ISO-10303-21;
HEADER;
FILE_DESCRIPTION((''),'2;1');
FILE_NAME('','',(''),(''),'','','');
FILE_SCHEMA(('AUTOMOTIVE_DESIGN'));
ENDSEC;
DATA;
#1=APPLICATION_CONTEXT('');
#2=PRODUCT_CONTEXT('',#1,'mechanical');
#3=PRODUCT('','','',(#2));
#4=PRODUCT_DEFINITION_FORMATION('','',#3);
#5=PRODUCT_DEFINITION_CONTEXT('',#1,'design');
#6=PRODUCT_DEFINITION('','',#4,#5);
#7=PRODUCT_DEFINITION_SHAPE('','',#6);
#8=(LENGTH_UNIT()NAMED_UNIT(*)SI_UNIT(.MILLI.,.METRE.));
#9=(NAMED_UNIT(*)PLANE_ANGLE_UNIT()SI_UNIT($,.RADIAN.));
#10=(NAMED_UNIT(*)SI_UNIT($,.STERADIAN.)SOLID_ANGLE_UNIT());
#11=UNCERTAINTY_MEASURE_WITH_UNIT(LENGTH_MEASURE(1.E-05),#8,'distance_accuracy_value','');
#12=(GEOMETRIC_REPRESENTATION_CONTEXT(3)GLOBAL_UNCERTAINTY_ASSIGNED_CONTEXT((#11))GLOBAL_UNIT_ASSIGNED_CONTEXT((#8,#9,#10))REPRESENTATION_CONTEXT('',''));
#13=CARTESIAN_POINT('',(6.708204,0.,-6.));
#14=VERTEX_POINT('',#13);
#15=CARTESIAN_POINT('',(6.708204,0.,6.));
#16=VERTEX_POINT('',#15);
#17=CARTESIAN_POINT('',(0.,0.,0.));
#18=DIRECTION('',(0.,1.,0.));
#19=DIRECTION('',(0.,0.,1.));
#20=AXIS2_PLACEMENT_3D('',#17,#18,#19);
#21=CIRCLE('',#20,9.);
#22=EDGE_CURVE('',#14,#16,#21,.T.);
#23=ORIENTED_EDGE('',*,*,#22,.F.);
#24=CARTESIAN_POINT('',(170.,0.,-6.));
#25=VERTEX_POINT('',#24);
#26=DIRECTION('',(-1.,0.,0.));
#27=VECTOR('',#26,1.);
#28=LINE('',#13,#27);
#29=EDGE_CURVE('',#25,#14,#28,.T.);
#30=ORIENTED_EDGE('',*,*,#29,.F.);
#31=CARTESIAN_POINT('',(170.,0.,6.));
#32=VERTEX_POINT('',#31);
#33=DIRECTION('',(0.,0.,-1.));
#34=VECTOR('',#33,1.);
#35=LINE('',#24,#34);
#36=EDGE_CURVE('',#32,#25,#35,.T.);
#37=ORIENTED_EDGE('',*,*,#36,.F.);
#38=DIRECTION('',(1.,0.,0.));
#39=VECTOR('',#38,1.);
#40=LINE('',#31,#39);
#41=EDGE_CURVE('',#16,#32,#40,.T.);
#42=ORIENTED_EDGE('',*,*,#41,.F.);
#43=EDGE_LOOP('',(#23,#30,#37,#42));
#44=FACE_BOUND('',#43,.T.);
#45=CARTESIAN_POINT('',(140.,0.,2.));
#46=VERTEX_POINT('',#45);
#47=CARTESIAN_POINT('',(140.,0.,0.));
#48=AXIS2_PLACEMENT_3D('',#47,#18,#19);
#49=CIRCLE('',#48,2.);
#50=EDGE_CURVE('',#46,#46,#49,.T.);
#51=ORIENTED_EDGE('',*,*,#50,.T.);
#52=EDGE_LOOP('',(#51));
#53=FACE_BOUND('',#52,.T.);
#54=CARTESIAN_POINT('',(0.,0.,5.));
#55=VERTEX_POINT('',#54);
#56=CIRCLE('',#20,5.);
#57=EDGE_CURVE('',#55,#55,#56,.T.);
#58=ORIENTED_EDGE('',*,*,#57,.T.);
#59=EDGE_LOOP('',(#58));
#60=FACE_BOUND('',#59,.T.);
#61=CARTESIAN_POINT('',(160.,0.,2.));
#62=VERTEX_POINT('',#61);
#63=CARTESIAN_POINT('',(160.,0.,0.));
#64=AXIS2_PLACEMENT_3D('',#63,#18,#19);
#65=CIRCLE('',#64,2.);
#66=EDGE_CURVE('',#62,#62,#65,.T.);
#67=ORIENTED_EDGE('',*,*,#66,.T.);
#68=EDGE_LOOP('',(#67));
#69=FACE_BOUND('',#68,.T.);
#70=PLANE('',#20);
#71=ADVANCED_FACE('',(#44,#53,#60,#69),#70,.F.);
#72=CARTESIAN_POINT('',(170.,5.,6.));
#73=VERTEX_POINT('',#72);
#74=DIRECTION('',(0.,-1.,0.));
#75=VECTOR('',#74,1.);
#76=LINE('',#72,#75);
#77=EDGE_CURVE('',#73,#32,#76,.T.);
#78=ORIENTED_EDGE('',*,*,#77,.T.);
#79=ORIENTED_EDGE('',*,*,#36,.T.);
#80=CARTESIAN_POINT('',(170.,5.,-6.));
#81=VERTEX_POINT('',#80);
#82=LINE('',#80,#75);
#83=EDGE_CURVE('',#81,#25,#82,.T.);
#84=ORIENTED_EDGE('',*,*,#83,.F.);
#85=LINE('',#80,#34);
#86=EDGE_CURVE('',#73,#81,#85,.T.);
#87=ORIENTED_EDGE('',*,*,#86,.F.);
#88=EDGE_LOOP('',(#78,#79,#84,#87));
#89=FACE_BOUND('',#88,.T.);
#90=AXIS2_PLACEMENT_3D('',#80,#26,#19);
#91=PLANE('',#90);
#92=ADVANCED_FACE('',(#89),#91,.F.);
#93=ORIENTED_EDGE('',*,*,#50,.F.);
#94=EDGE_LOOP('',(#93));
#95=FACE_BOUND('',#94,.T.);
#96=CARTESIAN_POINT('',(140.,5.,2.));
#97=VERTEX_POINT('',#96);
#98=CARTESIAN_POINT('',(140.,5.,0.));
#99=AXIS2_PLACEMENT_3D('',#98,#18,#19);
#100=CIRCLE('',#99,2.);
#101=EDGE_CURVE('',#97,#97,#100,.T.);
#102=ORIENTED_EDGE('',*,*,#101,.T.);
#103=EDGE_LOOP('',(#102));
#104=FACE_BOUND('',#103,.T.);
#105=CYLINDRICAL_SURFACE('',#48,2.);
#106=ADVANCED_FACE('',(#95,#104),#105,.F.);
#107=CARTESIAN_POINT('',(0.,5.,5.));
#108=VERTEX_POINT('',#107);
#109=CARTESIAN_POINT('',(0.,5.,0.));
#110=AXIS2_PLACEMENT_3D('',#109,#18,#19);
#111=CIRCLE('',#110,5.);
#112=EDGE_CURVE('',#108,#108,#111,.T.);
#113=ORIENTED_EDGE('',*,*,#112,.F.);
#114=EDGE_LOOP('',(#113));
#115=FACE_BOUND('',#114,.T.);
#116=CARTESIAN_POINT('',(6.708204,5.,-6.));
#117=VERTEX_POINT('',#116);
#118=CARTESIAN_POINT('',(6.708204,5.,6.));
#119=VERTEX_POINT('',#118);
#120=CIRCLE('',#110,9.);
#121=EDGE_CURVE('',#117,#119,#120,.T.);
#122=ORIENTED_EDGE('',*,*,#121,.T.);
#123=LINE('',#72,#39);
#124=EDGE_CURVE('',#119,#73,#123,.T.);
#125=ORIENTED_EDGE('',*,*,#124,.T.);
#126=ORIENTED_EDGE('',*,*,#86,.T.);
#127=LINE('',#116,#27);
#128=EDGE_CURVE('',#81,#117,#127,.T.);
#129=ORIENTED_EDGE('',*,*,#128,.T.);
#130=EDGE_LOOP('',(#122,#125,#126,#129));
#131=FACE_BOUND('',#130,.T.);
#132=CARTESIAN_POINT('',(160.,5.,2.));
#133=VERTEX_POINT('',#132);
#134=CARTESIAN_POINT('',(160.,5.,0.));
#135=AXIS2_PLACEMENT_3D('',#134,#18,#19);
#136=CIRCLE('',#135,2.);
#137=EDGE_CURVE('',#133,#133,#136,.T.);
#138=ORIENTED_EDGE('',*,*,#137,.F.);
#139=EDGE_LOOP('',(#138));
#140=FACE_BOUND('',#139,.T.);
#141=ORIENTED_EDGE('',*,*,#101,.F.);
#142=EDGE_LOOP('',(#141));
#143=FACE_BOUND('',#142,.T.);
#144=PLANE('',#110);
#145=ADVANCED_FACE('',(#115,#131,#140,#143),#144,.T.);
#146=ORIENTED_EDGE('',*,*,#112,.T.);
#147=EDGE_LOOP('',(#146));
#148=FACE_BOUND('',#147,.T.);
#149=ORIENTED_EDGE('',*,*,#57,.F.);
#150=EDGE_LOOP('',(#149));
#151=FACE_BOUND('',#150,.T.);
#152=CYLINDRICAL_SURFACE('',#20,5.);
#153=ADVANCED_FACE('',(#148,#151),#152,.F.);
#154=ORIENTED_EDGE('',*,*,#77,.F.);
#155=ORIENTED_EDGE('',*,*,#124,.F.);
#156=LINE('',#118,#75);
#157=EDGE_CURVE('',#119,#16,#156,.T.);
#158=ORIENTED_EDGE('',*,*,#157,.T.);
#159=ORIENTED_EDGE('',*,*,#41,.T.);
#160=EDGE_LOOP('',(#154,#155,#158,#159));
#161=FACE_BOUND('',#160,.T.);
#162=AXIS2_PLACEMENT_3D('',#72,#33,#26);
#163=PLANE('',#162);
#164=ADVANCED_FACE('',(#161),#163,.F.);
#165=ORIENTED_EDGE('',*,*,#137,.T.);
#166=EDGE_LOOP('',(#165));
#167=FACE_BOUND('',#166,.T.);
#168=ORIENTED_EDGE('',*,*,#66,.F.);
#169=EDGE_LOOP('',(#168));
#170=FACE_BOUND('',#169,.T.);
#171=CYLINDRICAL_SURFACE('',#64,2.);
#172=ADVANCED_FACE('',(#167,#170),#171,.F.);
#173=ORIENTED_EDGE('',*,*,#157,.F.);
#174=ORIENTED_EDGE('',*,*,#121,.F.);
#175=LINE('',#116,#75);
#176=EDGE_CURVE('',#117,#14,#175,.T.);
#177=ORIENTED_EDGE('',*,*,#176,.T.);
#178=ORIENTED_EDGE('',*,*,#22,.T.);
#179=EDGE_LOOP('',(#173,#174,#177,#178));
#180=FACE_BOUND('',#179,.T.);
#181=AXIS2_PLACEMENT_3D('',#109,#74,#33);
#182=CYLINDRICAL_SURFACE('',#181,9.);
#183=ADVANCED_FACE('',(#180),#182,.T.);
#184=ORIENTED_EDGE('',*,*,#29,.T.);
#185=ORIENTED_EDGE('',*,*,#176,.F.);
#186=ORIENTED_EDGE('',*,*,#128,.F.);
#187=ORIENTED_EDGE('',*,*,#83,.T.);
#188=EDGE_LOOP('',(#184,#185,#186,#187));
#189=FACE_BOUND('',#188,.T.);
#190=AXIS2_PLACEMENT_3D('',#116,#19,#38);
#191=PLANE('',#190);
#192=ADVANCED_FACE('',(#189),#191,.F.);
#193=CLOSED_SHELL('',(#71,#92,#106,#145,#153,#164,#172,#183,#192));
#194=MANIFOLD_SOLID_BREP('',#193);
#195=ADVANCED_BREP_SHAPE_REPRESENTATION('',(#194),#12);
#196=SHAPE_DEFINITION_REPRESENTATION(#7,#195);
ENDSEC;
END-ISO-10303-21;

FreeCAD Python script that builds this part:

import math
import FreeCAD as App
import Part
import Sketcher

V = App.Vector
Q = App.Units.Quantity

doc = App.newDocument("Part")
body = doc.addObject("PartDesign::Body", "Body")

sketch1 = body.newObject("Sketcher::SketchObject", "Sketch")
sketch1.AttachmentSupport = (doc.getObject("XZ_Plane"), [""])
sketch1.MapMode = "FlatFace"
sketch1.addGeometry(Part.LineSegment(V(170, -6, 0), V(7, -6, 0)), False)
sketch1.addGeometry(Part.ArcOfCircle(Part.Circle(V(0, 0, 0), V(0, 0, 1), 9), math.radians(42), math.radians(318)), False)
sketch1.addGeometry(Part.LineSegment(V(7, 6, 0), V(170, 6, 0)), False)
sketch1.addGeometry(Part.LineSegment(V(170, 6, 0), V(170, -6, 0)), False)
sketch1.addConstraint(Sketcher.Constraint("Coincident", 0, 2, 1, 2))
sketch1.addConstraint(Sketcher.Constraint("Coincident", 1, 1, 2, 1))
sketch1.addConstraint(Sketcher.Constraint("Coincident", 2, 2, 3, 1))
sketch1.addConstraint(Sketcher.Constraint("Coincident", 3, 2, 0, 1))
sketch1.addConstraint(Sketcher.Constraint("Horizontal", 0))
sketch1.addConstraint(Sketcher.Constraint("Horizontal", 2))
sketch1.addConstraint(Sketcher.Constraint("Vertical", 3))
sketch1.addConstraint(Sketcher.Constraint("Coincident", 1, 3, -1, 1))
sketch1.addConstraint(Sketcher.Constraint("Vertical", 0, 2, 1, 1))
sketch1.addConstraint(Sketcher.Constraint("Radius", 1, Q("9 mm")))
sketch1.addConstraint(Sketcher.Constraint("DistanceY", 3, 2, 3, 1, Q("12 mm")))
sketch1.addConstraint(Sketcher.Constraint("DistanceX", -1, 1, 2, 2, Q("170 mm")))
pad1 = body.newObject("PartDesign::Pad", "Pad")
pad1.Profile = sketch1
pad1.Length = 5
pad1.Reversed = True

sketch2 = body.newObject("Sketcher::SketchObject", "Sketch001")
sketch2.AttachmentSupport = (doc.getObject("XZ_Plane"), [""])
sketch2.MapMode = "FlatFace"
sketch2.AttachmentOffset = App.Placement(V(0, 0, -5), App.Rotation())
sketch2.addGeometry(Part.Circle(V(0, 0, 0), V(0, 0, 1), 5), False)
sketch2.addGeometry(Part.Circle(V(160, 0, 0), V(0, 0, 1), 2), False)
sketch2.addGeometry(Part.Circle(V(140, 0, 0), V(0, 0, 1), 2), False)
sketch2.addConstraint(Sketcher.Constraint("Coincident", 0, 3, -1, 1))
sketch2.addConstraint(Sketcher.Constraint("Equal", 1, 2))
sketch2.addConstraint(Sketcher.Constraint("PointOnObject", 1, 3, -1))
sketch2.addConstraint(Sketcher.Constraint("PointOnObject", 2, 3, -1))
sketch2.addConstraint(Sketcher.Constraint("Diameter", 0, Q("10 mm")))
sketch2.addConstraint(Sketcher.Constraint("Diameter", 1, Q("4 mm")))
sketch2.addConstraint(Sketcher.Constraint("DistanceX", -1, 1, 1, 3, Q("160 mm")))
sketch2.addConstraint(Sketcher.Constraint("DistanceX", -1, 1, 2, 3, Q("140 mm")))
pocket1 = body.newObject("PartDesign::Pocket", "Pocket")
pocket1.Profile = sketch2
pocket1.Type = "ThroughAll"
pocket1.Reversed = True

doc.recompute()
